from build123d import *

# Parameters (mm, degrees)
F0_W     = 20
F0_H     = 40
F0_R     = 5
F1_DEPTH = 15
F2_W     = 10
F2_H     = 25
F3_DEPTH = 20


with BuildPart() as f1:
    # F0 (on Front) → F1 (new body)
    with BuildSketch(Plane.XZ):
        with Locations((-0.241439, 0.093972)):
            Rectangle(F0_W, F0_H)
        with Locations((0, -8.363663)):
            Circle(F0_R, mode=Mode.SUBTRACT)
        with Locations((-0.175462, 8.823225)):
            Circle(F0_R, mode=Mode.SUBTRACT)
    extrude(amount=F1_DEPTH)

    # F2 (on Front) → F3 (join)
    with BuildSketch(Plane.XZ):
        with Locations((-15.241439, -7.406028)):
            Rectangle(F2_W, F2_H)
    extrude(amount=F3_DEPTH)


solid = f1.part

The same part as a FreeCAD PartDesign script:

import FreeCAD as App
import Part
import Sketcher
from FreeCAD import Vector

doc = App.newDocument("Part")
body = doc.addObject("PartDesign::Body", "Body")

sketch1 = body.newObject("Sketcher::SketchObject", "Sketch")
sketch1.AttachmentSupport = (doc.getObject("XZ_Plane"), [""])
sketch1.MapMode = "FlatFace"
sketch1.addGeometry(Part.LineSegment(Vector(-10, 20, 0), Vector(-10, -20, 0)), False)
sketch1.addGeometry(Part.LineSegment(Vector(-10, -20, 0), Vector(10, -20, 0)), False)
sketch1.addGeometry(Part.LineSegment(Vector(10, -20, 0), Vector(10, 20, 0)), False)
sketch1.addGeometry(Part.LineSegment(Vector(10, 20, 0), Vector(-10, 20, 0)), False)
sketch1.addGeometry(Part.Circle(Vector(0, -8, 0), Vector(0, 0, 1), 5), False)
sketch1.addGeometry(Part.Circle(Vector(0, 9, 0), Vector(0, 0, 1), 5), False)
sketch1.addConstraint(Sketcher.Constraint("Coincident", 0, 2, 1, 1))
sketch1.addConstraint(Sketcher.Constraint("Coincident", 1, 2, 2, 1))
sketch1.addConstraint(Sketcher.Constraint("Coincident", 2, 2, 3, 1))
sketch1.addConstraint(Sketcher.Constraint("Coincident", 3, 2, 0, 1))
sketch1.addConstraint(Sketcher.Constraint("Vertical", 0))
sketch1.addConstraint(Sketcher.Constraint("Horizontal", 1))
sketch1.addConstraint(Sketcher.Constraint("Vertical", 2))
sketch1.addConstraint(Sketcher.Constraint("Horizontal", 3))
sketch1.addConstraint(Sketcher.Constraint("Equal", 4, 5))
sketch1.addConstraint(Sketcher.Constraint("PointOnObject", 4, 3, -2))
sketch1.addConstraint(Sketcher.Constraint("Diameter", 4, 10.0))
sketch1.addConstraint(Sketcher.Constraint("DistanceX", 1, 1, 1, 2, 20.0))
sketch1.addConstraint(Sketcher.Constraint("DistanceY", 0, 2, 0, 1, 40.0))
sketch1.addConstraint(Sketcher.Constraint("DistanceX", 0, 2, -1, 1, 10.241439))
sketch1.addConstraint(Sketcher.Constraint("DistanceY", 4, 3, 5, 3, 17.186888))
sketch1.addConstraint(Sketcher.Constraint("DistanceY", 4, 3, -1, 1, 8.363663))
sketch1.addConstraint(Sketcher.Constraint("DistanceX", 5, 3, -1, 1, 0.175462))
sketch1.addConstraint(Sketcher.Constraint("DistanceY", 0, 2, -1, 1, 19.906028))
pad1 = body.newObject("PartDesign::Pad", "Pad")
pad1.Profile = sketch1
pad1.Length = 15

sketch2 = body.newObject("Sketcher::SketchObject", "Sketch001")
sketch2.AttachmentSupport = (doc.getObject("XZ_Plane"), [""])
sketch2.MapMode = "FlatFace"
sketch2.addGeometry(Part.LineSegment(Vector(-20, 5, 0), Vector(-20, -20, 0)), False)
sketch2.addGeometry(Part.LineSegment(Vector(-20, -20, 0), Vector(-10, -20, 0)), False)
sketch2.addGeometry(Part.LineSegment(Vector(-10, -20, 0), Vector(-10, 5, 0)), False)
sketch2.addGeometry(Part.LineSegment(Vector(-10, 5, 0), Vector(-20, 5, 0)), False)
sketch2.addConstraint(Sketcher.Constraint("Coincident", 0, 2, 1, 1))
sketch2.addConstraint(Sketcher.Constraint("Coincident", 1, 2, 2, 1))
sketch2.addConstraint(Sketcher.Constraint("Coincident", 2, 2, 3, 1))
sketch2.addConstraint(Sketcher.Constraint("Coincident", 3, 2, 0, 1))
sketch2.addConstraint(Sketcher.Constraint("Vertical", 0))
sketch2.addConstraint(Sketcher.Constraint("Horizontal", 1))
sketch2.addConstraint(Sketcher.Constraint("Vertical", 2))
sketch2.addConstraint(Sketcher.Constraint("Horizontal", 3))
sketch2.addConstraint(Sketcher.Constraint("DistanceX", 1, 1, 1, 2, 10.0))
sketch2.addConstraint(Sketcher.Constraint("DistanceY", 0, 2, 0, 1, 25.0))
sketch2.addConstraint(Sketcher.Constraint("DistanceX", 0, 2, -1, 1, 20.241439))
sketch2.addConstraint(Sketcher.Constraint("DistanceY", 0, 2, -1, 1, 19.906028))
pad2 = body.newObject("PartDesign::Pad", "Pad001")
pad2.Profile = sketch2
pad2.Length = 20

doc.recompute()
